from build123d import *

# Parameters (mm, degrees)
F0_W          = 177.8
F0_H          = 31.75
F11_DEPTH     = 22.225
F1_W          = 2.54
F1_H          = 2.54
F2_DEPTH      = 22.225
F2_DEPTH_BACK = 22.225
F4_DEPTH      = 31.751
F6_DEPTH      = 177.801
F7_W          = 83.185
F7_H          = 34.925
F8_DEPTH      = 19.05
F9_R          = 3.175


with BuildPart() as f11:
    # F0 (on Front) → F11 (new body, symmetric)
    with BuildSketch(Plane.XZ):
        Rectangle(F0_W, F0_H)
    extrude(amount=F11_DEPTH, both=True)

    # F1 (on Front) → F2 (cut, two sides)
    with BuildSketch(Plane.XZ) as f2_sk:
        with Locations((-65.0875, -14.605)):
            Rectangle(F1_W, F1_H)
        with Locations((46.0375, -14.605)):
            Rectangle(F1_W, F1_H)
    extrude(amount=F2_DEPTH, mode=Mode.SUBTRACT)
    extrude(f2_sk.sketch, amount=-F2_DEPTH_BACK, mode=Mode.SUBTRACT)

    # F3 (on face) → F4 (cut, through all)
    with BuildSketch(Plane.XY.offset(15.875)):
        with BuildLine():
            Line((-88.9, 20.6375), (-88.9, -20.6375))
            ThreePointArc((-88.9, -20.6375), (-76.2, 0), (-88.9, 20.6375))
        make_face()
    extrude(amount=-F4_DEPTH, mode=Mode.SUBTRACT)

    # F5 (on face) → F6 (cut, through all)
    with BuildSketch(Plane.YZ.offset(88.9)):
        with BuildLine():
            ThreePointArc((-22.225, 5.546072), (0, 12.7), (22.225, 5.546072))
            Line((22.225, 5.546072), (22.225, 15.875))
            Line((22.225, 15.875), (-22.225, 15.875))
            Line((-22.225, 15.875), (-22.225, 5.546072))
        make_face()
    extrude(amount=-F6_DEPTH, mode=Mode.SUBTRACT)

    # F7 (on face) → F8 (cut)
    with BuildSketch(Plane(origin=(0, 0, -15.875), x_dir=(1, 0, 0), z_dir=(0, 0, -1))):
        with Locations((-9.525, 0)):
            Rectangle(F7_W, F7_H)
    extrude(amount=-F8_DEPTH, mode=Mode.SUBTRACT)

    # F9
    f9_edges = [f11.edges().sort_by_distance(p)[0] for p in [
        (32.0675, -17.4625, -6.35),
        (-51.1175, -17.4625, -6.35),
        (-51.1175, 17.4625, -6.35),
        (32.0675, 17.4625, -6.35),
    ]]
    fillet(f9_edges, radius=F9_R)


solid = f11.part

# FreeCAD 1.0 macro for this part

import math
import FreeCAD as App
import Part
import Sketcher

V = App.Vector
Q = App.Units.Quantity


def edges_at(feature, points):
    """Names of the edges that pass closest to the given points."""
    edges = feature.Shape.Edges
    near = lambda p: min(range(len(edges)), key=lambda i: edges[i].distToShape(Part.Vertex(*p))[0])
    return sorted({f"Edge{near(p) + 1}" for p in points})


def add_polygon(sketch, points):
    """Adds a closed chain of lines whose ends are joined by coincident constraints."""
    first, n = sketch.GeometryCount, len(points)
    for a, b in zip(points, points[1:] + points[:1]):
        sketch.addGeometry(Part.LineSegment(App.Vector(*a, 0), App.Vector(*b, 0)), False)
    for i in range(n):
        sketch.addConstraint(Sketcher.Constraint("Coincident", first + i, 2, first + (i + 1) % n, 1))

doc = App.newDocument("Part")
body = doc.addObject("PartDesign::Body", "Body")

# Sketch on XZ plane
sketch1 = doc.addObject("Sketcher::SketchObject", "Sketch")
body.addObject(sketch1)
sketch1.AttachmentSupport = (doc.XZ_Plane, [""])
sketch1.MapMode = "FlatFace"
add_polygon(sketch1, [(-89, 16), (-89, -16), (89, -16), (89, 16)])  # lines 0-3
sketch1.addConstraint([
    Sketcher.Constraint("Vertical", 0),
    Sketcher.Constraint("Horizontal", 1),
    Sketcher.Constraint("Vertical", 2),
    Sketcher.Constraint("Horizontal", 3),
    Sketcher.Constraint("Symmetric", 0, 2, 2, 2, -1, 1),
    Sketcher.Constraint("DistanceX", 1, 1, 1, 2, Q("7 in")),
    Sketcher.Constraint("DistanceY", 0, 2, 0, 1, Q("1.25 in")),
])
pad1 = doc.addObject("PartDesign::Pad", "Pad")
body.addObject(pad1)
pad1.Profile = sketch1
pad1.Length = Q("1.75 in")
pad1.Midplane = True

# Sketch on XZ plane
sketch2 = doc.addObject("Sketcher::SketchObject", "Sketch001")
body.addObject(sketch2)
sketch2.AttachmentSupport = (doc.XZ_Plane, [""])
sketch2.MapMode = "FlatFace"
add_polygon(sketch2, [(-66.4, -13.3), (-66.4, -15.9), (-63.8, -15.9), (-63.8, -13.3)])  # lines 0-3
add_polygon(sketch2, [(44.8, -13.3), (44.8, -15.9), (47.3, -15.9), (47.3, -13.3)])  # lines 4-7
sketch2.addConstraint([
    Sketcher.Constraint("Vertical", 0),
    Sketcher.Constraint("Horizontal", 1),
    Sketcher.Constraint("Vertical", 2),
    Sketcher.Constraint("Horizontal", 3),
    Sketcher.Constraint("Vertical", 4),
    Sketcher.Constraint("Horizontal", 5),
    Sketcher.Constraint("Vertical", 6),
    Sketcher.Constraint("Horizontal", 7),
    Sketcher.Constraint("Horizontal", 1, 2, 4, 2),
    Sketcher.Constraint("Horizontal", 3, 2, 6, 2),
    Sketcher.Constraint("Equal", 3, 5),
    Sketcher.Constraint("Equal", 7, 0),
    Sketcher.Constraint("DistanceX", 1, 1, 1, 2, Q("0.1 in")),
    Sketcher.Constraint("DistanceY", 0, 2, -1, 1, Q("0.625 in")),
    Sketcher.Constraint("DistanceX", 1, 2, 4, 2, Q("4.275 in")),
    Sketcher.Constraint("DistanceX", 0, 2, -1, 1, Q("2.6125 in")),
])
pocket1 = doc.addObject("PartDesign::Pocket", "Pocket")
body.addObject(pocket1)
pocket1.Profile = sketch2
pocket1.Type = "ThroughAll"
pocket1.Midplane = True

# Sketch on XY plane
sketch3 = doc.addObject("Sketcher::SketchObject", "Sketch002")
body.addObject(sketch3)
sketch3.AttachmentSupport = (doc.XY_Plane, [""])
sketch3.MapMode = "FlatFace"
sketch3.AttachmentOffset = App.Placement(V(0, 0, 0.625 * 25.4), App.Rotation())
sketch3.addGeometry([
    Part.LineSegment(V(-89, 21, 0), V(-89, -21, 0)),
    Part.ArcOfCircle(Part.Circle(V(-99, 0, 0), V(0, 0, 1), 23), math.radians(-63), math.radians(63)),
], False)
sketch3.addConstraint([
    Sketcher.Constraint("Coincident", 0, 1, 1, 2),
    Sketcher.Constraint("Coincident", 1, 1, 0, 2),
    Sketcher.Constraint("Vertical", 0),
    Sketcher.Constraint("PointOnObject", 1, 3, -1),
    Sketcher.Constraint("DistanceX", 0, 1, -1, 1, Q("3.5 in")),
    Sketcher.Constraint("DistanceY", 0, 2, 0, 1, Q("1.625 in")),
    Sketcher.Constraint("Radius", 1, 23.117969),
])
pocket2 = doc.addObject("PartDesign::Pocket", "Pocket001")
body.addObject(pocket2)
pocket2.Profile = sketch3
pocket2.Type = "ThroughAll"

# Sketch on YZ plane
sketch4 = doc.addObject("Sketcher::SketchObject", "Sketch003")
body.addObject(sketch4)
sketch4.AttachmentSupport = (doc.YZ_Plane, [""])
sketch4.MapMode = "FlatFace"
sketch4.AttachmentOffset = App.Placement(V(0, 0, 3.5 * 25.4), App.Rotation())
sketch4.addGeometry([
    Part.ArcOfCircle(Part.Circle(V(0, -25, 0), V(0, 0, 1), 38), math.radians(54), math.radians(126)),
    Part.LineSegment(V(22, 6, 0), V(22, 16, 0)),
    Part.LineSegment(V(22, 16, 0), V(-22, 16, 0)),
    Part.LineSegment(V(-22, 16, 0), V(-22, 6, 0)),
], False)
sketch4.addConstraint([
    Sketcher.Constraint("Coincident", 0, 1, 1, 1),
    Sketcher.Constraint("Coincident", 1, 2, 2, 1),
    Sketcher.Constraint("Coincident", 2, 2, 3, 1),
    Sketcher.Constraint("Coincident", 3, 2, 0, 2),
    Sketcher.Constraint("Vertical", 1),
    Sketcher.Constraint("Horizontal", 2),
    Sketcher.Constraint("Vertical", 3),
    Sketcher.Constraint("Symmetric", 0, 1, 3, 2, -2),
    Sketcher.Constraint("Radius", 0, Q("1.5 in")),
    Sketcher.Constraint("DistanceY", 0, 3, -1, 1, Q("1 in")),
    Sketcher.Constraint("DistanceX", 2, 2, 2, 1, Q("1.75 in")),
    Sketcher.Constraint("DistanceY", -1, 1, 1, 2, Q("0.625 in")),
])
pocket3 = doc.addObject("PartDesign::Pocket", "Pocket002")
body.addObject(pocket3)
pocket3.Profile = sketch4
pocket3.Type = "ThroughAll"

# Sketch on XY plane
sketch5 = doc.addObject("Sketcher::SketchObject", "Sketch004")
body.addObject(sketch5)
sketch5.AttachmentSupport = (doc.XY_Plane, [""])
sketch5.MapMode = "FlatFace"
sketch5.AttachmentOffset = App.Placement(V(0, 0, -0.625 * 25.4), App.Rotation())
add_polygon(sketch5, [(-51, -17), (-51, 17), (32, 17), (32, -17)])  # lines 0-3
sketch5.addConstraint([
    Sketcher.Constraint("Vertical", 0),
    Sketcher.Constraint("Horizontal", 1),
    Sketcher.Constraint("Vertical", 2),
    Sketcher.Constraint("Horizontal", 3),
    Sketcher.Constraint("DistanceX", 1, 1, 1, 2, Q("3.275 in")),
    Sketcher.Constraint("DistanceY", 0, 1, 0, 2, Q("1.375 in")),
    Sketcher.Constraint("DistanceY", -1, 1, 0, 2, Q("0.6875 in")),
    Sketcher.Constraint("DistanceX", 0, 2, -1, 1, Q("2.0125 in")),
])
pocket4 = doc.addObject("PartDesign::Pocket", "Pocket003")
body.addObject(pocket4)
pocket4.Profile = sketch5
pocket4.Length = Q("0.75 in")
pocket4.Reversed = True
doc.recompute()

fillet = doc.addObject("PartDesign::Fillet", "Fillet")
body.addObject(fillet)
fillet.Base = (pocket4, edges_at(pocket4, [
    (32.068, -17.462, -6.35),
    (-51.117, -17.462, -6.35),
    (-51.117, 17.462, -6.35),
    (32.068, 17.462, -6.35),
]))
fillet.Radius = Q("0.125 in")

doc.recompute()
